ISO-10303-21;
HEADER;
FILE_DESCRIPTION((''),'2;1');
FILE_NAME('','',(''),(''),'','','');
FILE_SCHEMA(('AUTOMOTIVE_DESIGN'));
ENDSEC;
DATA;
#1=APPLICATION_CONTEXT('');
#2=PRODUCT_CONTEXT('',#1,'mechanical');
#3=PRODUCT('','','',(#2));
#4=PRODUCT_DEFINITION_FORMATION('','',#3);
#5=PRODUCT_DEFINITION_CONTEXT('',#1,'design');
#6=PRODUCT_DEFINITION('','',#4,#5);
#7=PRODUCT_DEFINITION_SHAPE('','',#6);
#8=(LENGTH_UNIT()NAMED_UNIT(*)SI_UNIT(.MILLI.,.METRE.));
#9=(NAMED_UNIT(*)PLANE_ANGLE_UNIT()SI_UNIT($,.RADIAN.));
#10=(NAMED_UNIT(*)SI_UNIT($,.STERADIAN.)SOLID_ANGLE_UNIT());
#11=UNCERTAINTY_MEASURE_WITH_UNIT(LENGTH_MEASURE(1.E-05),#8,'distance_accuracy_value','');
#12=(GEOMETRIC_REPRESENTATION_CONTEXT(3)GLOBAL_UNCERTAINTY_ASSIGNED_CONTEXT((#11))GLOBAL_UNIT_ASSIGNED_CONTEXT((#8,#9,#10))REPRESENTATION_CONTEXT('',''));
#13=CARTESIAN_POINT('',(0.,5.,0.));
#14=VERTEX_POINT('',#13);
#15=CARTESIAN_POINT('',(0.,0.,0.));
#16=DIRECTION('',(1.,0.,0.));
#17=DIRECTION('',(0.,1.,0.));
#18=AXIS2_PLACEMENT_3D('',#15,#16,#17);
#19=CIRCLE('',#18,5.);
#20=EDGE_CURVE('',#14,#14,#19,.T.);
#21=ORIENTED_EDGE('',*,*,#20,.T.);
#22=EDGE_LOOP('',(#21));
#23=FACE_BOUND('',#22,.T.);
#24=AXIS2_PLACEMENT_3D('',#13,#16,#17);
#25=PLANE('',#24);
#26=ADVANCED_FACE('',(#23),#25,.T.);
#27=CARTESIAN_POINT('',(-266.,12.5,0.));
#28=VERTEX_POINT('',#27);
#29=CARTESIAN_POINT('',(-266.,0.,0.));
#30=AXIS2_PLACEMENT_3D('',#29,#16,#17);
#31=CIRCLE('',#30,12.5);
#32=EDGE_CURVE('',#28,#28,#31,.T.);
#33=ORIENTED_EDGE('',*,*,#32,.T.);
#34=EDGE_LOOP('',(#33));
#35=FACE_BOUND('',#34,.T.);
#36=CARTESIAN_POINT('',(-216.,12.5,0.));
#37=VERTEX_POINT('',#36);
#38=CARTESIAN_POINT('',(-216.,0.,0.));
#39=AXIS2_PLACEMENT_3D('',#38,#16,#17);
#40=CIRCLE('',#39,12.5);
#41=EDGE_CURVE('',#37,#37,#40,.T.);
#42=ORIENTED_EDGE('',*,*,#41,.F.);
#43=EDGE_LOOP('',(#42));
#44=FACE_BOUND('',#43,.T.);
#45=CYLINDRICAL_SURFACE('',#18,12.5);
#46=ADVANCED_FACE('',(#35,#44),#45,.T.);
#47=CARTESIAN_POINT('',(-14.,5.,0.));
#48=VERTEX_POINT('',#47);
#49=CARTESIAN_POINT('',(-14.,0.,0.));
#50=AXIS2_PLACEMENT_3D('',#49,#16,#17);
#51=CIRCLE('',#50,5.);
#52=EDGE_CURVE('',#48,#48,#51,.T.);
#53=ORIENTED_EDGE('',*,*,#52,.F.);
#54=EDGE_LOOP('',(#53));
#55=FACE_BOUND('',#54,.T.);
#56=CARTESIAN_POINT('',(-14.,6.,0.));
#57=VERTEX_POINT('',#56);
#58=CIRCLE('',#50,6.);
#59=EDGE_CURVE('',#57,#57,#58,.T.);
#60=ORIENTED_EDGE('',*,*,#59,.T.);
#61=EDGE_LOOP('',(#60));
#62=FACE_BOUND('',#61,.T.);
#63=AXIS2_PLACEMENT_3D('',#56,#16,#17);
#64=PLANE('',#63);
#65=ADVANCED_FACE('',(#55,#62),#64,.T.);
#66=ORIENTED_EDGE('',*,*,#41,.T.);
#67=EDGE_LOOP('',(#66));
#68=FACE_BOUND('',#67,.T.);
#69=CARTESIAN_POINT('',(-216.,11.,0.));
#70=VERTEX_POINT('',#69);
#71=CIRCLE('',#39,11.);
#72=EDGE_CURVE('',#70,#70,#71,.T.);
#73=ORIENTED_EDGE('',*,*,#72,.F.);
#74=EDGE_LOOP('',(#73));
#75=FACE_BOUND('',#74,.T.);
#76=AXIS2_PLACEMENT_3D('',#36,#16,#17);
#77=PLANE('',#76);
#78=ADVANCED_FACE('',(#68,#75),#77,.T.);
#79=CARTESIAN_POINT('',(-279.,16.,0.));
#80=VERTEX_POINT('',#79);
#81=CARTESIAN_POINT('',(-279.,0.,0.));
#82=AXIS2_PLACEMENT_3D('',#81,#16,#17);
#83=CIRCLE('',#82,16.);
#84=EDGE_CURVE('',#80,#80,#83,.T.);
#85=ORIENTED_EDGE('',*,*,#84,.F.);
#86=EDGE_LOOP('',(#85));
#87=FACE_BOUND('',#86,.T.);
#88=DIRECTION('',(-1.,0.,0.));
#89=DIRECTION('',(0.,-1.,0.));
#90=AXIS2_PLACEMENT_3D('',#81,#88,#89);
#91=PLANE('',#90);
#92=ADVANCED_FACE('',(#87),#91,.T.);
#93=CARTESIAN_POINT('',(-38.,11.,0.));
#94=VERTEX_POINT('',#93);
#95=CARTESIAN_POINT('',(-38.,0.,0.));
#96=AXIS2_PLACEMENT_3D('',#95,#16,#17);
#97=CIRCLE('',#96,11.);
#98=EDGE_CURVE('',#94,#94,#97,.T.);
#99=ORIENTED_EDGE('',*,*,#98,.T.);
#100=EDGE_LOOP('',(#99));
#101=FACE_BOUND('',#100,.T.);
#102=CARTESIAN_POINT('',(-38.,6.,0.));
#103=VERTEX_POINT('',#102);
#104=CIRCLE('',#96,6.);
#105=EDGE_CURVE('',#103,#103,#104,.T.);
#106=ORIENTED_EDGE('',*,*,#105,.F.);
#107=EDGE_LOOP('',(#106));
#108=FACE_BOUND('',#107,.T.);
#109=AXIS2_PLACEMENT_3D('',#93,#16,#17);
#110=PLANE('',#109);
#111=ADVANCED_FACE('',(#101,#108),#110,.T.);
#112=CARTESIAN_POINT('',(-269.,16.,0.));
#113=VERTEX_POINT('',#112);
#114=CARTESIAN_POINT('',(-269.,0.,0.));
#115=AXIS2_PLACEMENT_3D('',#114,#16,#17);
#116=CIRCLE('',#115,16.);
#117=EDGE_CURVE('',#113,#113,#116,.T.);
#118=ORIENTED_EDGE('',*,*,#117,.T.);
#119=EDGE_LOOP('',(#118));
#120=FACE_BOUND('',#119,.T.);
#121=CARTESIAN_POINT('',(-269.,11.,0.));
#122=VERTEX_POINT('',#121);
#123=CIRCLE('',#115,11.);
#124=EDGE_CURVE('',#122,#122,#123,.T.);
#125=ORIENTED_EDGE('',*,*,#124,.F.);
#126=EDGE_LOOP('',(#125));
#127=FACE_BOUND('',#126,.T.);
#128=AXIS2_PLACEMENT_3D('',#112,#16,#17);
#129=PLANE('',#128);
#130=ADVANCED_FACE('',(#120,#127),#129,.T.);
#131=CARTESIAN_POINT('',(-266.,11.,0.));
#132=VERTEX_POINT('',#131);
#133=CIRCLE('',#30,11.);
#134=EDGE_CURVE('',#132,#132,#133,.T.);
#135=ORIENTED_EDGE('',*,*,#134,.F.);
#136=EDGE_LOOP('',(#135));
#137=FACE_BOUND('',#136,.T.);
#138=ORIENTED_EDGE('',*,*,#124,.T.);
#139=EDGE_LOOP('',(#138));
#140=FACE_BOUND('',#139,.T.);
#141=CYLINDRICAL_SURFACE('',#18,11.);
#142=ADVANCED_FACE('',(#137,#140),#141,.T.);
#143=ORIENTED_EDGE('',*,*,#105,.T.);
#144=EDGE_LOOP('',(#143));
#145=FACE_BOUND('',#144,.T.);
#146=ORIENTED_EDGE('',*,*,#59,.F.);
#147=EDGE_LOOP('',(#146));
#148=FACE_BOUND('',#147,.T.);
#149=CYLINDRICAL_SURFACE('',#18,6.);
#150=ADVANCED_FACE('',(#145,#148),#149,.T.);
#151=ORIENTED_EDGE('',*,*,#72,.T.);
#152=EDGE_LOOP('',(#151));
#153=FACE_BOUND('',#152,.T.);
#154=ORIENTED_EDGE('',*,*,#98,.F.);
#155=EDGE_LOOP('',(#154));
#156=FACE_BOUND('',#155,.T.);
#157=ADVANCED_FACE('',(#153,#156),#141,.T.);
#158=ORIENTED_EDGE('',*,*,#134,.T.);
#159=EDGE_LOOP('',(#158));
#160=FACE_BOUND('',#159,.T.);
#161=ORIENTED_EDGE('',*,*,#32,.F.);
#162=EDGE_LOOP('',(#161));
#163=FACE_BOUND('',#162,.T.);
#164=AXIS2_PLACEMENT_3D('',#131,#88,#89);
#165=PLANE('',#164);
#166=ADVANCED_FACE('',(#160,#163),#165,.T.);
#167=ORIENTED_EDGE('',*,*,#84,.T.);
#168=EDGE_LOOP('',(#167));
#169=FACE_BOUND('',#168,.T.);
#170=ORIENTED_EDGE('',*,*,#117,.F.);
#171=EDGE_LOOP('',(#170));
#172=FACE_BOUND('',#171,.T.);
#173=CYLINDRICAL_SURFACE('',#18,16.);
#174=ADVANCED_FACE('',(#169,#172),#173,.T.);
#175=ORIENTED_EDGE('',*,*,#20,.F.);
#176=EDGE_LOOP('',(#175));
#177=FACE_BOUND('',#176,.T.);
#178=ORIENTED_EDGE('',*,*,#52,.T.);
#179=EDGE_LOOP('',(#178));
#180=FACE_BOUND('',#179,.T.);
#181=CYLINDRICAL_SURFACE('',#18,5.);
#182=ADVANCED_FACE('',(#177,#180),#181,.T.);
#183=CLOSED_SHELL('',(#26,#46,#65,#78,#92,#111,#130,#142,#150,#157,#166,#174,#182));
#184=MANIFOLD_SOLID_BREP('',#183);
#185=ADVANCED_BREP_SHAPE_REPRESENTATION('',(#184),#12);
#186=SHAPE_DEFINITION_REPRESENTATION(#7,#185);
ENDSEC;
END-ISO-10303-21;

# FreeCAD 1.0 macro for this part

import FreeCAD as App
import Part
import Sketcher

V = App.Vector


def add_polygon(sketch, points):
    """Adds a closed chain of lines whose ends are joined by coincident constraints."""
    first, n = sketch.GeometryCount, len(points)
    for a, b in zip(points, points[1:] + points[:1]):
        sketch.addGeometry(Part.LineSegment(App.Vector(*a, 0), App.Vector(*b, 0)), False)
    for i in range(n):
        sketch.addConstraint(Sketcher.Constraint("Coincident", first + i, 2, first + (i + 1) % n, 1))

doc = App.newDocument("Part")
body = doc.addObject("PartDesign::Body", "Body")

sketch1 = body.newObject("Sketcher::SketchObject", "Sketch")
sketch1.AttachmentSupport = (doc.getObject("XY_Plane"), [""])
sketch1.MapMode = "FlatFace"
add_polygon(sketch1, [(-279, 16), (-279, 0), (0, 0), (0, 5), (-14, 5), (-14, 6), (-38, 6), (-38, 11), (-216, 11), (-216, 12.5), (-266, 12.5), (-266, 11), (-269, 11), (-269, 16)])
sketch1.addConstraint(Sketcher.Constraint("Vertical", 0))
sketch1.addConstraint(Sketcher.Constraint("Horizontal", 1))
sketch1.addConstraint(Sketcher.Constraint("Vertical", 2))
sketch1.addConstraint(Sketcher.Constraint("Horizontal", 3))
sketch1.addConstraint(Sketcher.Constraint("Vertical", 4))
sketch1.addConstraint(Sketcher.Constraint("Horizontal", 5))
sketch1.addConstraint(Sketcher.Constraint("Vertical", 6))
sketch1.addConstraint(Sketcher.Constraint("Horizontal", 7))
sketch1.addConstraint(Sketcher.Constraint("Vertical", 8))
sketch1.addConstraint(Sketcher.Constraint("Horizontal", 9))
sketch1.addConstraint(Sketcher.Constraint("Vertical", 10))
sketch1.addConstraint(Sketcher.Constraint("Horizontal", 11))
sketch1.addConstraint(Sketcher.Constraint("Vertical", 12))
sketch1.addConstraint(Sketcher.Constraint("Horizontal", 13))
sketch1.addConstraint(Sketcher.Constraint("Coincident", 1, 2, -1, 1))
sketch1.addConstraint(Sketcher.Constraint("Horizontal", 7, 2, 10, 2))
sketch1.addConstraint(Sketcher.Constraint("Equal", 2, 6))
sketch1.addConstraint(Sketcher.Constraint("Equal", 6, 12))
sketch1.addConstraint(Sketcher.Constraint("DistanceX", 1, 1, 1, 2, 279.0))
sketch1.addConstraint(Sketcher.Constraint("DistanceX", 3, 2, 3, 1, 14.0))
sketch1.addConstraint(Sketcher.Constraint("DistanceX", 5, 2, 5, 1, 24.0))
sketch1.addConstraint(Sketcher.Constraint("DistanceX", 7, 2, 7, 1, 178.0))
sketch1.addConstraint(Sketcher.Constraint("DistanceX", 9, 2, 9, 1, 50.0))
sketch1.addConstraint(Sketcher.Constraint("DistanceX", 11, 2, 11, 1, 3.0))
sketch1.addConstraint(Sketcher.Constraint("DistanceY", 0, 2, 0, 1, 16.0))
sketch1.addConstraint(Sketcher.Constraint("DistanceY", 2, 1, 2, 2, 5.0))
sketch1.addConstraint(Sketcher.Constraint("DistanceY", 8, 1, 8, 2, 1.5))
revolution = body.newObject("PartDesign::Revolution", "Revolution")
revolution.Profile = sketch1
revolution.ReferenceAxis = (sketch1, ["H_Axis"])
revolution.Angle = 360

doc.recompute()
